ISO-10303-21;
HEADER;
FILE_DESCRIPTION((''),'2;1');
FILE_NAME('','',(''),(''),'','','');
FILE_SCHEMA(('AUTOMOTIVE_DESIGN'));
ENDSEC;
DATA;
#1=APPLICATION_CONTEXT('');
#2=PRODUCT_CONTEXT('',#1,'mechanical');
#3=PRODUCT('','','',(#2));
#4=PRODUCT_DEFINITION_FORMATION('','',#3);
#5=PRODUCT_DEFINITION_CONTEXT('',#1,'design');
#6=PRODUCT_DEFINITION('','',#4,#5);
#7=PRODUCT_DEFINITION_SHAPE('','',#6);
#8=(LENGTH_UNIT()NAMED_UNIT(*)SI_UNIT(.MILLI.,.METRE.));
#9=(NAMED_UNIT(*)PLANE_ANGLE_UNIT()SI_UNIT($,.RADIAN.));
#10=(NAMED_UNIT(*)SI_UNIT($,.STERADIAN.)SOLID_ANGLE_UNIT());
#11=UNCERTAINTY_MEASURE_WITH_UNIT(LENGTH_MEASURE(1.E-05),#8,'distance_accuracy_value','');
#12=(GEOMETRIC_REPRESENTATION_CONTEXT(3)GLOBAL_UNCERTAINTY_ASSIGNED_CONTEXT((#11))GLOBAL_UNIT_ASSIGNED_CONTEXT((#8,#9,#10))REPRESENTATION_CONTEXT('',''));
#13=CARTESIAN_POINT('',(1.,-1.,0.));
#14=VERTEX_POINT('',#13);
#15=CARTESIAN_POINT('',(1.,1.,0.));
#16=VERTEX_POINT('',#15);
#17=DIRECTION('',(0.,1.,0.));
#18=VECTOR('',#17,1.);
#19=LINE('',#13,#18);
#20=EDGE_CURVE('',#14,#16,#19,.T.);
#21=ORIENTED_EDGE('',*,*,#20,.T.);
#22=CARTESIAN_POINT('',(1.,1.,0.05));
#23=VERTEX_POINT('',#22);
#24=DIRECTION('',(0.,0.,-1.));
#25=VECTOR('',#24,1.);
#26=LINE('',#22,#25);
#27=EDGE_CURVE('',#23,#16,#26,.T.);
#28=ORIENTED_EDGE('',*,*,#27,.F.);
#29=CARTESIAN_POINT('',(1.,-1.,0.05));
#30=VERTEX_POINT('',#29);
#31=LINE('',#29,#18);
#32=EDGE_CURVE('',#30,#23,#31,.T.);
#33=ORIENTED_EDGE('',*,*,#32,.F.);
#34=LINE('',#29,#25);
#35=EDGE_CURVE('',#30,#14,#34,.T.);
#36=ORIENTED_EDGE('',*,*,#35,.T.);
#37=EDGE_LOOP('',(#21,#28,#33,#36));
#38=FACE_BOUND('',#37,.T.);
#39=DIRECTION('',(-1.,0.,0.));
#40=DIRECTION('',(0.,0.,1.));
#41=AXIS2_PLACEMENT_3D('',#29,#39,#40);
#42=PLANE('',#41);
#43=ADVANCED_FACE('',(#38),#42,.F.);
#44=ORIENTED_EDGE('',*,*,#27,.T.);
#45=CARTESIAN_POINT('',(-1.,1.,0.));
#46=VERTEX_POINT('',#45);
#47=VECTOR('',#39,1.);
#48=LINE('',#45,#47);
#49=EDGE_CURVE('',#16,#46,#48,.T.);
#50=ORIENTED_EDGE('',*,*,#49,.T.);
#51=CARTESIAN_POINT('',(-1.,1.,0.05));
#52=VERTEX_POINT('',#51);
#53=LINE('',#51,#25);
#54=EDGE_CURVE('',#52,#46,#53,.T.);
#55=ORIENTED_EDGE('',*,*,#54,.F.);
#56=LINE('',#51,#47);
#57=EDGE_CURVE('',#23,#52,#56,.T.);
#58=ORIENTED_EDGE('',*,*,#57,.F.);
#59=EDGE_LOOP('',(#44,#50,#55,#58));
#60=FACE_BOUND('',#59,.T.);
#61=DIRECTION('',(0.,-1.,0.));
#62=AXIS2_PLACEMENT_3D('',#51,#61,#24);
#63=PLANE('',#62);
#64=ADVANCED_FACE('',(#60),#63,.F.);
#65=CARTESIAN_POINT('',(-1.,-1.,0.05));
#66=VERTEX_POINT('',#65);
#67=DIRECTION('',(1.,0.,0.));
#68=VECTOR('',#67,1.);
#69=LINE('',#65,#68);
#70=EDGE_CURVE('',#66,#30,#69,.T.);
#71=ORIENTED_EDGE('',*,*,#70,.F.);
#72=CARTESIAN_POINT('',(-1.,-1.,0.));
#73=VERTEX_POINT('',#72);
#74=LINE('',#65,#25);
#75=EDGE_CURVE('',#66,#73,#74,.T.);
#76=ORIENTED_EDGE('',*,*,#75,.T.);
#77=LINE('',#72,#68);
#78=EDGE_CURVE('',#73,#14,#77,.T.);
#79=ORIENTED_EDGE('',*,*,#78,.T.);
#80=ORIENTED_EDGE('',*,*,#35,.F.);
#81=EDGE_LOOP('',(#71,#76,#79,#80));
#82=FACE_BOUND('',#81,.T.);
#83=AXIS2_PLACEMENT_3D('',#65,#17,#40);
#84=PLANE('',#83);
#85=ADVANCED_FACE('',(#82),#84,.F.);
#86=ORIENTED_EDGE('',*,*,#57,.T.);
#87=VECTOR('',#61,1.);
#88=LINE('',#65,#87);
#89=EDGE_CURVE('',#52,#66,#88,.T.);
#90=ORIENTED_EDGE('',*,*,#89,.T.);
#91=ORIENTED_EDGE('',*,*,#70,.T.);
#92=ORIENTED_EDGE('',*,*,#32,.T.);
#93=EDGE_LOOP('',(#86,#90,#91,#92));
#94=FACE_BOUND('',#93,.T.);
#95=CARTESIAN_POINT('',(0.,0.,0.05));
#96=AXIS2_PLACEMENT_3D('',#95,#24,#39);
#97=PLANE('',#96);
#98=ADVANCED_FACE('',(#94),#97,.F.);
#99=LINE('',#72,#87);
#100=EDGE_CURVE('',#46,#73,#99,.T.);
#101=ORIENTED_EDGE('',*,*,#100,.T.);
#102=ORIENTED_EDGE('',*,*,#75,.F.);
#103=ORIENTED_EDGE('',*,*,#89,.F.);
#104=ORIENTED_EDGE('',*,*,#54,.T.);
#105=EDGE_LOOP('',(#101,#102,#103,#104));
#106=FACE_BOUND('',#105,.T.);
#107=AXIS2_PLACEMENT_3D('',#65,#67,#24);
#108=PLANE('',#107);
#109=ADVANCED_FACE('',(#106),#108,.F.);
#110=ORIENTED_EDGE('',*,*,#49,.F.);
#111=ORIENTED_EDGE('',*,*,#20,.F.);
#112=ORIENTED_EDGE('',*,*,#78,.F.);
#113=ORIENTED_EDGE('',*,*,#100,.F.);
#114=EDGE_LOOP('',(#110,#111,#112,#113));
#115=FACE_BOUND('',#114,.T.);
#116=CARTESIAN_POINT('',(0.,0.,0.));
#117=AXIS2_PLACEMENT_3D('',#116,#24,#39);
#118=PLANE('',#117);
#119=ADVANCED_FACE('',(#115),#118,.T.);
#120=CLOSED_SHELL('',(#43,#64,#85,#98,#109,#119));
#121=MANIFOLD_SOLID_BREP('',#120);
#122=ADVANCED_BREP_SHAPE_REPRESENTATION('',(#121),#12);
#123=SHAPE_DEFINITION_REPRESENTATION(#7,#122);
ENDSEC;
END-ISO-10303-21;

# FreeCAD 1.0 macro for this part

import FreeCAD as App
import Part
import Sketcher

doc = App.newDocument("Part")
body = doc.addObject("PartDesign::Body", "Body")

# Sketch on XY plane
sketch1 = body.newObject("Sketcher::SketchObject", "Sketch")
sketch1.AttachmentSupport = (doc.getObject("XY_Plane"), [""])
sketch1.MapMode = "FlatFace"
sketch1.addGeometry([
    Part.LineSegment(App.Vector(-1, 1, 0), App.Vector(-1, -1, 0)),
    Part.LineSegment(App.Vector(-1, -1, 0), App.Vector(1, -1, 0)),
    Part.LineSegment(App.Vector(1, -1, 0), App.Vector(1, 1, 0)),
    Part.LineSegment(App.Vector(1, 1, 0), App.Vector(-1, 1, 0)),
], False)
sketch1.addConstraint([
    Sketcher.Constraint("Coincident", 0, 2, 1, 1),
    Sketcher.Constraint("Coincident", 1, 2, 2, 1),
    Sketcher.Constraint("Coincident", 2, 2, 3, 1),
    Sketcher.Constraint("Coincident", 3, 2, 0, 1),
    Sketcher.Constraint("Vertical", 0),
    Sketcher.Constraint("Horizontal", 1),
    Sketcher.Constraint("Vertical", 2),
    Sketcher.Constraint("Horizontal", 3),
    Sketcher.Constraint("Symmetric", 0, 2, 2, 2, -1, 1),
    Sketcher.Constraint("Equal", 3, 0),
    Sketcher.Constraint("DistanceX", 1, 1, 1, 2, 2.0),
])
pad1 = body.newObject("PartDesign::Pad", "Pad")
pad1.Profile = sketch1
pad1.Length = 0.05

doc.recompute()
